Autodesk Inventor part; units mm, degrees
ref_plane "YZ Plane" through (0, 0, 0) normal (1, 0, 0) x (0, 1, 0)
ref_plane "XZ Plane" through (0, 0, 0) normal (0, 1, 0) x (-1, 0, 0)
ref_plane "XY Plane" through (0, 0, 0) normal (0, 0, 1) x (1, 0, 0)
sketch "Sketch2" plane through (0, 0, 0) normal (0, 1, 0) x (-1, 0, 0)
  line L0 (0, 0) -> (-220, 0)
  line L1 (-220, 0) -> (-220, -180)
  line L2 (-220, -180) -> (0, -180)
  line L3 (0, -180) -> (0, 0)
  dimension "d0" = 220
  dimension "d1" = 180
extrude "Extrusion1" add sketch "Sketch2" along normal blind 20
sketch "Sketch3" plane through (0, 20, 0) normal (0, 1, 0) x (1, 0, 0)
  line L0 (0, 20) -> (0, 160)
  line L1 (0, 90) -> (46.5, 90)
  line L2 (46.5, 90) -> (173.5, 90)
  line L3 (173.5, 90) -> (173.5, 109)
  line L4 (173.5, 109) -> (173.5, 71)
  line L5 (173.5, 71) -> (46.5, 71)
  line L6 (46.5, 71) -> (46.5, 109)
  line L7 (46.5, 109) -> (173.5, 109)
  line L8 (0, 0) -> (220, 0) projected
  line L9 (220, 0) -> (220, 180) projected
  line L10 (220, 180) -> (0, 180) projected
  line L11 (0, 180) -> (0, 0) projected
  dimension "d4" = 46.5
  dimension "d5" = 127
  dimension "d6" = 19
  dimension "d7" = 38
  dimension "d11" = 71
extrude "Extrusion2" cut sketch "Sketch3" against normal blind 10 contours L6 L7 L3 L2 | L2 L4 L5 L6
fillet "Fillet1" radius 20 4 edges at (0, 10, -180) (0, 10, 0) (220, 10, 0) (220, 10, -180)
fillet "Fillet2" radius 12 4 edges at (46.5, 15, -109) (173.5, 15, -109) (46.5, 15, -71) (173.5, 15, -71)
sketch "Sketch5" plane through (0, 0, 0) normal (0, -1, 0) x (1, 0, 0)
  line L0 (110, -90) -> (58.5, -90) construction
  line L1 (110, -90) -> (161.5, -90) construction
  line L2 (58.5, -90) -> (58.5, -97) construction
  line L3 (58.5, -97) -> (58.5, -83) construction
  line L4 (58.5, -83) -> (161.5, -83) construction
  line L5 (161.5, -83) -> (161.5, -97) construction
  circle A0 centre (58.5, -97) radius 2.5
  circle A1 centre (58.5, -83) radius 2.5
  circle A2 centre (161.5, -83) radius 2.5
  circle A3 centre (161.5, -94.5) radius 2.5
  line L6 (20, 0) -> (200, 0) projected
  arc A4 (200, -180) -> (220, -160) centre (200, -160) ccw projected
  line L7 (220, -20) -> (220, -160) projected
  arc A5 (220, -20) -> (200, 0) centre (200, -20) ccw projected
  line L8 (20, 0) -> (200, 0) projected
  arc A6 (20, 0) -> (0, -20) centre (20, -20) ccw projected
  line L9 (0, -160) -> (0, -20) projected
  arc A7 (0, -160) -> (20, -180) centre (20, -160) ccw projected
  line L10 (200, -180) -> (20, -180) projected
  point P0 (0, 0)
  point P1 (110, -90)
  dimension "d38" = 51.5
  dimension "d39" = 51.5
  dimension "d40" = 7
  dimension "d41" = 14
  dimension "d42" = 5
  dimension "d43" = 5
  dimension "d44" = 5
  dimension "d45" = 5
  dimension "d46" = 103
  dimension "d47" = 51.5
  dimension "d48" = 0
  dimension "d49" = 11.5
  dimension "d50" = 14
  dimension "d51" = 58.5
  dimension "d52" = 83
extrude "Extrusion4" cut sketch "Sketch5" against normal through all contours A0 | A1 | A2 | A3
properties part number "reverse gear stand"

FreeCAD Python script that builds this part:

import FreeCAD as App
import Part
import Sketcher
Q = App.Units.Quantity


def edges_at(feature, points):
    """Names of the edges that pass closest to the given points."""
    edges = feature.Shape.Edges
    near = lambda p: min(range(len(edges)), key=lambda i: edges[i].distToShape(Part.Vertex(*p))[0])
    return sorted({f"Edge{near(p) + 1}" for p in points})

doc = App.newDocument("Part")
body = doc.addObject("PartDesign::Body", "Body")

# Sketch on XZ plane
sketch1 = body.newObject("Sketcher::SketchObject", "Sketch")
sketch1.AttachmentSupport = (doc.getObject("XZ_Plane"), [""])
sketch1.MapMode = "FlatFace"
sketch1.addGeometry([
    Part.LineSegment(App.Vector(0, -180, 0), App.Vector(0, 0, 0)),
    Part.LineSegment(App.Vector(0, 0, 0), App.Vector(220, 0, 0)),
    Part.LineSegment(App.Vector(220, 0, 0), App.Vector(220, -180, 0)),
    Part.LineSegment(App.Vector(220, -180, 0), App.Vector(0, -180, 0)),
], False)
sketch1.addConstraint([
    Sketcher.Constraint("Coincident", 0, 2, 1, 1),
    Sketcher.Constraint("Coincident", 1, 2, 2, 1),
    Sketcher.Constraint("Coincident", 2, 2, 3, 1),
    Sketcher.Constraint("Coincident", 3, 2, 0, 1),
    Sketcher.Constraint("Vertical", 0),
    Sketcher.Constraint("Horizontal", 1),
    Sketcher.Constraint("Vertical", 2),
    Sketcher.Constraint("Horizontal", 3),
    Sketcher.Constraint("Coincident", 0, 2, -1, 1),
    Sketcher.Constraint("DistanceX", 1, 1, 1, 2, Q("220 mm")),
    Sketcher.Constraint("DistanceY", 0, 1, 0, 2, Q("180 mm")),
])
pad1 = body.newObject("PartDesign::Pad", "Pad")
pad1.Profile = sketch1
pad1.Length = 20
pad1.Reversed = True

# Sketch on XZ plane
sketch2 = body.newObject("Sketcher::SketchObject", "Sketch001")
sketch2.AttachmentSupport = (doc.getObject("XZ_Plane"), [""])
sketch2.MapMode = "FlatFace"
sketch2.AttachmentOffset = App.Placement(App.Vector(0, 0, -20), App.Rotation())
sketch2.addGeometry([
    Part.LineSegment(App.Vector(46, -109, 0), App.Vector(46, -71, 0)),
    Part.LineSegment(App.Vector(46, -71, 0), App.Vector(174, -71, 0)),
    Part.LineSegment(App.Vector(174, -71, 0), App.Vector(174, -109, 0)),
    Part.LineSegment(App.Vector(174, -109, 0), App.Vector(46, -109, 0)),
], False)
sketch2.addConstraint([
    Sketcher.Constraint("Coincident", 0, 2, 1, 1),
    Sketcher.Constraint("Coincident", 1, 2, 2, 1),
    Sketcher.Constraint("Coincident", 2, 2, 3, 1),
    Sketcher.Constraint("Coincident", 3, 2, 0, 1),
    Sketcher.Constraint("Vertical", 0),
    Sketcher.Constraint("Horizontal", 1),
    Sketcher.Constraint("Vertical", 2),
    Sketcher.Constraint("Horizontal", 3),
    Sketcher.Constraint("DistanceX", 1, 1, 1, 2, Q("127 mm")),
    Sketcher.Constraint("DistanceY", 0, 1, 0, 2, Q("38 mm")),
    Sketcher.Constraint("DistanceY", 0, 2, -1, 1, Q("71 mm")),
    Sketcher.Constraint("DistanceX", -1, 1, 0, 2, Q("46.5 mm")),
])
pocket1 = body.newObject("PartDesign::Pocket", "Pocket")
pocket1.Profile = sketch2
pocket1.Length = 10
pocket1.Reversed = True
doc.recompute()

fillet = body.newObject("PartDesign::Fillet", "Fillet")
fillet.Base = (pocket1, edges_at(pocket1, [
    (0, 10, -180),
    (0, 10, 0),
    (220, 10, 0),
    (220, 10, -180),
]))
fillet.Radius = 20
doc.recompute()

fillet2 = body.newObject("PartDesign::Fillet", "Fillet001")
fillet2.Base = (fillet, edges_at(fillet, [
    (46.5, 15, -109),
    (173.5, 15, -109),
    (46.5, 15, -71),
    (173.5, 15, -71),
]))
fillet2.Radius = 12

# Sketch on XZ plane
sketch3 = body.newObject("Sketcher::SketchObject", "Sketch002")
sketch3.AttachmentSupport = (doc.getObject("XZ_Plane"), [""])
sketch3.MapMode = "FlatFace"
sketch3.addGeometry([
    Part.Circle(App.Vector(58.5, -97, 0), App.Vector(0, 0, 1), 2.5),
    Part.Circle(App.Vector(58.5, -83, 0), App.Vector(0, 0, 1), 2.5),
    Part.Circle(App.Vector(161.5, -83, 0), App.Vector(0, 0, 1), 2.5),
    Part.Circle(App.Vector(161.5, -94.5, 0), App.Vector(0, 0, 1), 2.5),
], False)
sketch3.addConstraint([
    Sketcher.Constraint("Equal", 0, 1),
    Sketcher.Constraint("Equal", 1, 2),
    Sketcher.Constraint("Equal", 2, 3),
    Sketcher.Constraint("Horizontal", 1, 3, 2, 3),
    Sketcher.Constraint("Vertical", 0, 3, 1, 3),
    Sketcher.Constraint("Vertical", 2, 3, 3, 3),
    Sketcher.Constraint("Diameter", 0, Q("5 mm")),
    Sketcher.Constraint("DistanceY", 1, 3, -1, 1, Q("83 mm")),
    Sketcher.Constraint("DistanceY", 0, 3, 1, 3, Q("14 mm")),
    Sketcher.Constraint("DistanceX", 1, 3, 2, 3, Q("103 mm")),
    Sketcher.Constraint("DistanceX", -1, 1, 0, 3, Q("58.5 mm")),
    Sketcher.Constraint("DistanceY", 3, 3, 2, 3, Q("11.5 mm")),
])
pocket2 = body.newObject("PartDesign::Pocket", "Pocket001")
pocket2.Profile = sketch3
pocket2.Type = "ThroughAll"

doc.recompute()
